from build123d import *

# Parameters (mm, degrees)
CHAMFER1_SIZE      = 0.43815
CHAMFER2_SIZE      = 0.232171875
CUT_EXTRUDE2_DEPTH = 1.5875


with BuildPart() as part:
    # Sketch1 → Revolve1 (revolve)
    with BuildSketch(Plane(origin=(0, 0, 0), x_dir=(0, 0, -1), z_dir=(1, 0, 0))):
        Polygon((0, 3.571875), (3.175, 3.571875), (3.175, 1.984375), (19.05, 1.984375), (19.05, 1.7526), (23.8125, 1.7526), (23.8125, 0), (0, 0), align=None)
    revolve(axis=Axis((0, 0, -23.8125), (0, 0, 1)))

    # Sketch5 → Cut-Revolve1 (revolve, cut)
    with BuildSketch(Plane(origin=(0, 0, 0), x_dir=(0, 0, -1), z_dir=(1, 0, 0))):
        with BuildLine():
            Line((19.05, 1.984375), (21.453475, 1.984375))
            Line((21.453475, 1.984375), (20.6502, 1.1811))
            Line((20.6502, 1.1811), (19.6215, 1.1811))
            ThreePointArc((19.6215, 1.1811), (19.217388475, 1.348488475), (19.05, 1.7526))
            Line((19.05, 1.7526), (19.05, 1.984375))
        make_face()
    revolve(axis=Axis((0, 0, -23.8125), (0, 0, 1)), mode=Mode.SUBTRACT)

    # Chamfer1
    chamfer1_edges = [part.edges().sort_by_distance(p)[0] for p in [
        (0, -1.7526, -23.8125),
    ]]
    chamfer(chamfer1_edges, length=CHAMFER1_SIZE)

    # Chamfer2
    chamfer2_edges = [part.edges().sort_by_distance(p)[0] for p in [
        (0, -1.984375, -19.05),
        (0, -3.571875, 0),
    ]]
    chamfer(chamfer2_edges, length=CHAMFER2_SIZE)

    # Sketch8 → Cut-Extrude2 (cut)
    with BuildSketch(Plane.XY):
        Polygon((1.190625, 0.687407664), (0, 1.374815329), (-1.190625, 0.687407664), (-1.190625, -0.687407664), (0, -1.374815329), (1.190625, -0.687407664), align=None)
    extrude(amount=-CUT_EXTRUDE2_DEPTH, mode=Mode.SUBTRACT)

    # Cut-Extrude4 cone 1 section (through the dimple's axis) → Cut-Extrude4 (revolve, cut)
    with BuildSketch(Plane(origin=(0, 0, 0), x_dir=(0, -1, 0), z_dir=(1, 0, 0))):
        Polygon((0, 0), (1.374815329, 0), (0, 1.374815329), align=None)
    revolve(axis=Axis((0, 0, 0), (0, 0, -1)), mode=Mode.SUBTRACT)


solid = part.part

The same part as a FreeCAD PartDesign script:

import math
import FreeCAD as App
import Part
import Sketcher
from FreeCAD import Vector
Q = App.Units.Quantity


def edges_at(feature, points):
    """Names of the edges that pass closest to the given points."""
    edges = feature.Shape.Edges
    near = lambda p: min(range(len(edges)), key=lambda i: edges[i].distToShape(Part.Vertex(*p))[0])
    return sorted({f"Edge{near(p) + 1}" for p in points})

doc = App.newDocument("Part")
params = doc.addObject("Spreadsheet::Sheet", "Params")
for row, (alias, value) in enumerate([
    ("sketch1_width", "0.140625 in"),
    ("sketch1_width2", "0.069 in"),
    ("sketch1_width3", "0.0625 in"),
    ("sketch1_height", "0.125 in"),
    ("sketch1_height2", "0.9375 in"),
    ("revolution_angle", "360 deg"),
    ("groove_angle", "360 deg"),
    ("chamfer_size", "0.43815 mm"),
    ("chamfer2_size", "0.232172 mm"),
    ("pocket1_length", "0.0625 in"),
    ("groove2_angle", "360 deg"),
], start=1):
    params.set(f"A{row}", alias)
    params.set(f"B{row}", "=" + value)
    params.setAlias(f"B{row}", alias)

body = doc.addObject("PartDesign::Body", "Body")

sketch1 = body.newObject("Sketcher::SketchObject", "Sketch")
sketch1.AttachmentSupport = (doc.getObject("YZ_Plane"), [""])
sketch1.MapMode = "FlatFace"
sketch1.addGeometry([
    Part.LineSegment(Vector(3.57, -3.17, 0), Vector(3.57, 0, 0)),
    Part.LineSegment(Vector(3.57, 0, 0), Vector(0, 0, 0)),
    Part.LineSegment(Vector(0, 0, 0), Vector(0, -23.81, 0)),
    Part.LineSegment(Vector(0, -23.81, 0), Vector(1.75, -23.81, 0)),
    Part.LineSegment(Vector(1.75, -23.81, 0), Vector(1.75, -19.05, 0)),
    Part.LineSegment(Vector(1.75, -19.05, 0), Vector(1.98, -19.05, 0)),
    Part.LineSegment(Vector(1.98, -19.05, 0), Vector(1.98, -3.17, 0)),
    Part.LineSegment(Vector(1.98, -3.17, 0), Vector(3.57, -3.17, 0)),
], False)
sketch1.addConstraint([
    Sketcher.Constraint("Coincident", 0, 2, 1, 1),
    Sketcher.Constraint("Coincident", 1, 2, 2, 1),
    Sketcher.Constraint("Coincident", 2, 2, 3, 1),
    Sketcher.Constraint("Coincident", 3, 2, 4, 1),
    Sketcher.Constraint("Coincident", 4, 2, 5, 1),
    Sketcher.Constraint("Coincident", 5, 2, 6, 1),
    Sketcher.Constraint("Coincident", 6, 2, 7, 1),
    Sketcher.Constraint("Coincident", 7, 2, 0, 1),
    Sketcher.Constraint("Vertical", 0),
    Sketcher.Constraint("Horizontal", 1),
    Sketcher.Constraint("Vertical", 2),
    Sketcher.Constraint("Horizontal", 3),
    Sketcher.Constraint("Vertical", 4),
    Sketcher.Constraint("Horizontal", 5),
    Sketcher.Constraint("Vertical", 6),
    Sketcher.Constraint("Horizontal", 7),
    Sketcher.Constraint("Coincident", 1, 2, -1, 1),
    Sketcher.Constraint("DistanceX", 1, 2, 1, 1, Q("0.140625 in")),
    Sketcher.Constraint("DistanceX", 3, 1, 3, 2, Q("0.069 in")),
    Sketcher.Constraint("DistanceX", 7, 1, 7, 2, Q("0.0625 in")),
    Sketcher.Constraint("DistanceY", 0, 1, 0, 2, Q("0.125 in")),
    Sketcher.Constraint("DistanceY", 2, 2, 2, 1, Q("0.9375 in")),
    Sketcher.Constraint("DistanceY", 4, 1, 4, 2, Q("0.1875 in")),
])
sketch1.setExpression("Constraints[17]", "Params.sketch1_width")
sketch1.setExpression("Constraints[18]", "Params.sketch1_width2")
sketch1.setExpression("Constraints[19]", "Params.sketch1_width3")
sketch1.setExpression("Constraints[20]", "Params.sketch1_height")
sketch1.setExpression("Constraints[21]", "Params.sketch1_height2")
revolution = body.newObject("PartDesign::Revolution", "Revolution")
revolution.Profile = sketch1
revolution.ReferenceAxis = (sketch1, ["V_Axis"])
revolution.setExpression("Angle", "Params.revolution_angle")

sketch2 = body.newObject("Sketcher::SketchObject", "Sketch001")
sketch2.AttachmentSupport = (doc.getObject("YZ_Plane"), [""])
sketch2.MapMode = "FlatFace"
sketch2.addGeometry([
    Part.LineSegment(Vector(1.98, -21.45, 0), Vector(1.98, -19.05, 0)),
    Part.LineSegment(Vector(1.98, -19.05, 0), Vector(1.75, -19.05, 0)),
    Part.ArcOfCircle(Part.Circle(Vector(1.75, -19.62, 0), Vector(0, 0, 1), 0.57), math.radians(90), math.radians(180)),
    Part.LineSegment(Vector(1.18, -19.62, 0), Vector(1.18, -20.65, 0)),
    Part.LineSegment(Vector(1.18, -20.65, 0), Vector(1.98, -21.45, 0)),
], False)
sketch2.addConstraint([
    Sketcher.Constraint("Coincident", 0, 2, 1, 1),
    Sketcher.Constraint("Tangent", 1, 2, 2, 1),
    Sketcher.Constraint("Tangent", 2, 2, 3, 1),
    Sketcher.Constraint("Coincident", 3, 2, 4, 1),
    Sketcher.Constraint("Coincident", 4, 2, 0, 1),
    Sketcher.Constraint("Vertical", 0),
    Sketcher.Constraint("Horizontal", 1),
    Sketcher.Constraint("Vertical", 3),
    Sketcher.Constraint("Angle", 4, Q("-45 deg")),
    Sketcher.Constraint("Radius", 2, Q("0.0225 in")),
    Sketcher.Constraint("DistanceY", 0, 2, -1, 1, Q("0.75 in")),
    Sketcher.Constraint("DistanceY", 3, 2, 3, 1, Q("0.0405 in")),
    Sketcher.Constraint("DistanceX", -1, 1, 2, 3, Q("0.069 in")),
    Sketcher.Constraint("DistanceX", -1, 1, 0, 2, Q("0.078125 in")),
])
groove = body.newObject("PartDesign::Groove", "Groove")
groove.Profile = sketch2
groove.ReferenceAxis = (sketch2, ["V_Axis"])
groove.setExpression("Angle", "Params.groove_angle")
doc.recompute()

chamfer = body.newObject("PartDesign::Chamfer", "Chamfer")
chamfer.Base = (groove, edges_at(groove, [(0, -1.753, -23.812)]))
chamfer.setExpression("Size", "Params.chamfer_size")
doc.recompute()

chamfer2 = body.newObject("PartDesign::Chamfer", "Chamfer001")
chamfer2.Base = (chamfer, edges_at(chamfer, [(0, -1.984, -19.05), (0, -3.572, 0)]))
chamfer2.setExpression("Size", "Params.chamfer2_size")

sketch3 = body.newObject("Sketcher::SketchObject", "Sketch002")
sketch3.AttachmentSupport = (doc.getObject("XY_Plane"), [""])
sketch3.MapMode = "FlatFace"
sketch3.addGeometry([
    Part.LineSegment(Vector(1.2, 0.7, 0), Vector(0, 1.4, 0)),
    Part.LineSegment(Vector(0, 1.4, 0), Vector(-1.2, 0.7, 0)),
    Part.LineSegment(Vector(-1.2, 0.7, 0), Vector(-1.2, -0.7, 0)),
    Part.LineSegment(Vector(-1.2, -0.7, 0), Vector(0, -1.4, 0)),
    Part.LineSegment(Vector(0, -1.4, 0), Vector(1.2, -0.7, 0)),
    Part.LineSegment(Vector(1.2, -0.7, 0), Vector(1.2, 0.7, 0)),
], False)
sketch3.addConstraint([
    Sketcher.Constraint("Coincident", 0, 2, 1, 1),
    Sketcher.Constraint("Coincident", 1, 2, 2, 1),
    Sketcher.Constraint("Coincident", 2, 2, 3, 1),
    Sketcher.Constraint("Coincident", 3, 2, 4, 1),
    Sketcher.Constraint("Coincident", 4, 2, 5, 1),
    Sketcher.Constraint("Coincident", 5, 2, 0, 1),
    Sketcher.Constraint("Vertical", 2),
    Sketcher.Constraint("Vertical", 5),
    Sketcher.Constraint("Symmetric", 0, 2, 3, 2, -1, 1),
    Sketcher.Constraint("Symmetric", 1, 2, 4, 2, -1, 1),
    Sketcher.Constraint("PointOnObject", 0, 2, -2),
    Sketcher.Constraint("Parallel", 0, 3),
    Sketcher.Constraint("Horizontal", 2, 2, 4, 2),
    Sketcher.Constraint("Angle", 0, Q("150 deg")),
    Sketcher.Constraint("DistanceX", 1, 2, -1, 1, Q("0.046875 in")),
    Sketcher.Constraint("DistanceY", 2, 2, 2, 1, Q("1.374815 mm")),
])
pocket1 = body.newObject("PartDesign::Pocket", "Pocket")
pocket1.Profile = sketch3
pocket1.setExpression("Length", "Params.pocket1_length")

sketch4 = body.newObject("Sketcher::SketchObject", "Sketch003")
sketch4.AttachmentSupport = (doc.getObject("YZ_Plane"), [""])
sketch4.MapMode = "FlatFace"
sketch4.addGeometry([
    Part.LineSegment(Vector(0, 0, 0), Vector(-1.4, 0, 0)),
    Part.LineSegment(Vector(-1.4, 0, 0), Vector(0, -1.4, 0)),
    Part.LineSegment(Vector(0, -1.4, 0), Vector(0, 0, 0)),
], False)
sketch4.addConstraint([
    Sketcher.Constraint("Coincident", 0, 2, 1, 1),
    Sketcher.Constraint("Coincident", 1, 2, 2, 1),
    Sketcher.Constraint("Coincident", 2, 2, 0, 1),
    Sketcher.Constraint("Horizontal", 0),
    Sketcher.Constraint("Vertical", 2),
    Sketcher.Constraint("Coincident", 2, 2, -1, 1),
    Sketcher.Constraint("Equal", 0, 2),
    Sketcher.Constraint("DistanceX", 0, 2, 0, 1, Q("1.374815 mm")),
])
groove2 = body.newObject("PartDesign::Groove", "Groove001")
groove2.Profile = sketch4
groove2.ReferenceAxis = (sketch4, ["V_Axis"])
groove2.setExpression("Angle", "Params.groove2_angle")

doc.recompute()
